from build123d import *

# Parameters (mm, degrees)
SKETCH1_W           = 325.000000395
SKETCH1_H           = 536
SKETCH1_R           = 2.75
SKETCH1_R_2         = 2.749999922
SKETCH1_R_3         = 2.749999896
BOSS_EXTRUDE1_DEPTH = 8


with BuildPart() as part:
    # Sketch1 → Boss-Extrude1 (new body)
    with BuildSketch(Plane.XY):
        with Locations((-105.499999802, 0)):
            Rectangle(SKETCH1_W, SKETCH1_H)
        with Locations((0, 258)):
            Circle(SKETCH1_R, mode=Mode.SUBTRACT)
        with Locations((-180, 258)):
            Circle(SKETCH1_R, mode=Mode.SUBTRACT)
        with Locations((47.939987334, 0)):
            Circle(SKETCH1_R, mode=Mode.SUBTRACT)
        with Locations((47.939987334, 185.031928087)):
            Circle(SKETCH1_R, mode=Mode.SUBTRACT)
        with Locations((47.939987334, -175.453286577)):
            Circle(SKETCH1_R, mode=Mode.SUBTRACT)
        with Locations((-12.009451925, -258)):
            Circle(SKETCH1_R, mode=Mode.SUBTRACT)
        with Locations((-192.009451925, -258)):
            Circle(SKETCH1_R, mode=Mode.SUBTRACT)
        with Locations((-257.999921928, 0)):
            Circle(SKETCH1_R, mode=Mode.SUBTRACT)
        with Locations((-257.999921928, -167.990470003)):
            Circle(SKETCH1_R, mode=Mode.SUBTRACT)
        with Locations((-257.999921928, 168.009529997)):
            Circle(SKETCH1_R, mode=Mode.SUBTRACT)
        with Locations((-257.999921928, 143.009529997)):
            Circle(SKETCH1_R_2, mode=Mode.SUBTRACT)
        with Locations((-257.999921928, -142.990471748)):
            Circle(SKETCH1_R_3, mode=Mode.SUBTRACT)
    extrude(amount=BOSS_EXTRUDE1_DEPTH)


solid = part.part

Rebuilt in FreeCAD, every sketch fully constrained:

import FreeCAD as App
import Part
import Sketcher
from FreeCAD import Vector
Q = App.Units.Quantity

doc = App.newDocument("Part")
body = doc.addObject("PartDesign::Body", "Body")

sketch1 = body.newObject("Sketcher::SketchObject", "Sketch")
sketch1.AttachmentSupport = (doc.getObject("XY_Plane"), [""])
sketch1.MapMode = "FlatFace"
sketch1.addGeometry([
    Part.LineSegment(Vector(-268, 268, 0), Vector(-268, -268, 0)),
    Part.LineSegment(Vector(-268, -268, 0), Vector(57, -268, 0)),
    Part.LineSegment(Vector(57, -268, 0), Vector(57, 268, 0)),
    Part.LineSegment(Vector(57, 268, 0), Vector(-268, 268, 0)),
    Part.Circle(Vector(-192, -258, 0), Vector(0, 0, 1), 2.8),
    Part.Circle(Vector(-258, -168, 0), Vector(0, 0, 1), 2.8),
    Part.Circle(Vector(-258, -143, 0), Vector(0, 0, 1), 2.7),
    Part.Circle(Vector(-12, -258, 0), Vector(0, 0, 1), 2.8),
    Part.Circle(Vector(47.9, -175.5, 0), Vector(0, 0, 1), 2.8),
    Part.Circle(Vector(-258, 0, 0), Vector(0, 0, 1), 2.8),
    Part.Circle(Vector(-258, 143, 0), Vector(0, 0, 1), 2.7),
    Part.Circle(Vector(-258, 168, 0), Vector(0, 0, 1), 2.8),
    Part.Circle(Vector(-180, 258, 0), Vector(0, 0, 1), 2.8),
    Part.Circle(Vector(47.9, 0, 0), Vector(0, 0, 1), 2.8),
    Part.Circle(Vector(47.9, 185, 0), Vector(0, 0, 1), 2.8),
    Part.Circle(Vector(0, 258, 0), Vector(0, 0, 1), 2.8),
], False)
sketch1.addConstraint([
    Sketcher.Constraint("Coincident", 0, 2, 1, 1),
    Sketcher.Constraint("Coincident", 1, 2, 2, 1),
    Sketcher.Constraint("Coincident", 2, 2, 3, 1),
    Sketcher.Constraint("Coincident", 3, 2, 0, 1),
    Sketcher.Constraint("Vertical", 0),
    Sketcher.Constraint("Horizontal", 1),
    Sketcher.Constraint("Vertical", 2),
    Sketcher.Constraint("Horizontal", 3),
    Sketcher.Constraint("Equal", 4, 5),
    Sketcher.Constraint("Equal", 5, 6),
    Sketcher.Constraint("Equal", 6, 7),
    Sketcher.Constraint("Equal", 7, 8),
    Sketcher.Constraint("Equal", 8, 9),
    Sketcher.Constraint("Equal", 9, 10),
    Sketcher.Constraint("Equal", 10, 11),
    Sketcher.Constraint("Equal", 11, 12),
    Sketcher.Constraint("Equal", 12, 13),
    Sketcher.Constraint("Equal", 13, 14),
    Sketcher.Constraint("Equal", 14, 15),
    Sketcher.Constraint("PointOnObject", 9, 3, -1),
    Sketcher.Constraint("PointOnObject", 13, 3, -1),
    Sketcher.Constraint("PointOnObject", 15, 3, -2),
    Sketcher.Constraint("Horizontal", 4, 3, 7, 3),
    Sketcher.Constraint("Horizontal", 12, 3, 15, 3),
    Sketcher.Constraint("Vertical", 5, 3, 6, 3),
    Sketcher.Constraint("Vertical", 6, 3, 9, 3),
    Sketcher.Constraint("Vertical", 9, 3, 10, 3),
    Sketcher.Constraint("Vertical", 10, 3, 11, 3),
    Sketcher.Constraint("Vertical", 8, 3, 13, 3),
    Sketcher.Constraint("Vertical", 13, 3, 14, 3),
    Sketcher.Constraint("Diameter", 4, Q("5.5 mm")),
    Sketcher.Constraint("DistanceX", 1, 1, 1, 2, Q("325 mm")),
    Sketcher.Constraint("DistanceY", 0, 2, 0, 1, Q("536 mm")),
    Sketcher.Constraint("DistanceY", 4, 3, -1, 1, Q("258 mm")),
    Sketcher.Constraint("DistanceX", 12, 3, -1, 1, Q("180 mm")),
    Sketcher.Constraint("DistanceY", -1, 1, 12, 3, Q("258 mm")),
    Sketcher.Constraint("DistanceX", 0, 2, -1, 1, Q("268 mm")),
    Sketcher.Constraint("DistanceY", 0, 2, -1, 1, Q("268 mm")),
    Sketcher.Constraint("DistanceY", 5, 3, 6, 3, Q("24.999998 mm")),
    Sketcher.Constraint("DistanceX", 4, 3, 7, 3, Q("180 mm")),
    Sketcher.Constraint("DistanceY", 6, 3, 10, 3, Q("286.000002 mm")),
    Sketcher.Constraint("DistanceY", 10, 3, 11, 3, Q("25 mm")),
    Sketcher.Constraint("DistanceY", 11, 3, 14, 3, Q("17.022398 mm")),
    Sketcher.Constraint("DistanceX", 4, 3, -1, 1, Q("192.009452 mm")),
    Sketcher.Constraint("DistanceX", 5, 3, -1, 1, Q("257.999922 mm")),
    Sketcher.Constraint("DistanceY", 5, 3, -1, 1, Q("167.99047 mm")),
    Sketcher.Constraint("DistanceX", 7, 3, 8, 3, Q("59.949439 mm")),
    Sketcher.Constraint("DistanceY", 8, 3, -1, 1, Q("175.453287 mm")),
])
pad1 = body.newObject("PartDesign::Pad", "Pad")
pad1.Profile = sketch1
pad1.Length = 8

doc.recompute()
